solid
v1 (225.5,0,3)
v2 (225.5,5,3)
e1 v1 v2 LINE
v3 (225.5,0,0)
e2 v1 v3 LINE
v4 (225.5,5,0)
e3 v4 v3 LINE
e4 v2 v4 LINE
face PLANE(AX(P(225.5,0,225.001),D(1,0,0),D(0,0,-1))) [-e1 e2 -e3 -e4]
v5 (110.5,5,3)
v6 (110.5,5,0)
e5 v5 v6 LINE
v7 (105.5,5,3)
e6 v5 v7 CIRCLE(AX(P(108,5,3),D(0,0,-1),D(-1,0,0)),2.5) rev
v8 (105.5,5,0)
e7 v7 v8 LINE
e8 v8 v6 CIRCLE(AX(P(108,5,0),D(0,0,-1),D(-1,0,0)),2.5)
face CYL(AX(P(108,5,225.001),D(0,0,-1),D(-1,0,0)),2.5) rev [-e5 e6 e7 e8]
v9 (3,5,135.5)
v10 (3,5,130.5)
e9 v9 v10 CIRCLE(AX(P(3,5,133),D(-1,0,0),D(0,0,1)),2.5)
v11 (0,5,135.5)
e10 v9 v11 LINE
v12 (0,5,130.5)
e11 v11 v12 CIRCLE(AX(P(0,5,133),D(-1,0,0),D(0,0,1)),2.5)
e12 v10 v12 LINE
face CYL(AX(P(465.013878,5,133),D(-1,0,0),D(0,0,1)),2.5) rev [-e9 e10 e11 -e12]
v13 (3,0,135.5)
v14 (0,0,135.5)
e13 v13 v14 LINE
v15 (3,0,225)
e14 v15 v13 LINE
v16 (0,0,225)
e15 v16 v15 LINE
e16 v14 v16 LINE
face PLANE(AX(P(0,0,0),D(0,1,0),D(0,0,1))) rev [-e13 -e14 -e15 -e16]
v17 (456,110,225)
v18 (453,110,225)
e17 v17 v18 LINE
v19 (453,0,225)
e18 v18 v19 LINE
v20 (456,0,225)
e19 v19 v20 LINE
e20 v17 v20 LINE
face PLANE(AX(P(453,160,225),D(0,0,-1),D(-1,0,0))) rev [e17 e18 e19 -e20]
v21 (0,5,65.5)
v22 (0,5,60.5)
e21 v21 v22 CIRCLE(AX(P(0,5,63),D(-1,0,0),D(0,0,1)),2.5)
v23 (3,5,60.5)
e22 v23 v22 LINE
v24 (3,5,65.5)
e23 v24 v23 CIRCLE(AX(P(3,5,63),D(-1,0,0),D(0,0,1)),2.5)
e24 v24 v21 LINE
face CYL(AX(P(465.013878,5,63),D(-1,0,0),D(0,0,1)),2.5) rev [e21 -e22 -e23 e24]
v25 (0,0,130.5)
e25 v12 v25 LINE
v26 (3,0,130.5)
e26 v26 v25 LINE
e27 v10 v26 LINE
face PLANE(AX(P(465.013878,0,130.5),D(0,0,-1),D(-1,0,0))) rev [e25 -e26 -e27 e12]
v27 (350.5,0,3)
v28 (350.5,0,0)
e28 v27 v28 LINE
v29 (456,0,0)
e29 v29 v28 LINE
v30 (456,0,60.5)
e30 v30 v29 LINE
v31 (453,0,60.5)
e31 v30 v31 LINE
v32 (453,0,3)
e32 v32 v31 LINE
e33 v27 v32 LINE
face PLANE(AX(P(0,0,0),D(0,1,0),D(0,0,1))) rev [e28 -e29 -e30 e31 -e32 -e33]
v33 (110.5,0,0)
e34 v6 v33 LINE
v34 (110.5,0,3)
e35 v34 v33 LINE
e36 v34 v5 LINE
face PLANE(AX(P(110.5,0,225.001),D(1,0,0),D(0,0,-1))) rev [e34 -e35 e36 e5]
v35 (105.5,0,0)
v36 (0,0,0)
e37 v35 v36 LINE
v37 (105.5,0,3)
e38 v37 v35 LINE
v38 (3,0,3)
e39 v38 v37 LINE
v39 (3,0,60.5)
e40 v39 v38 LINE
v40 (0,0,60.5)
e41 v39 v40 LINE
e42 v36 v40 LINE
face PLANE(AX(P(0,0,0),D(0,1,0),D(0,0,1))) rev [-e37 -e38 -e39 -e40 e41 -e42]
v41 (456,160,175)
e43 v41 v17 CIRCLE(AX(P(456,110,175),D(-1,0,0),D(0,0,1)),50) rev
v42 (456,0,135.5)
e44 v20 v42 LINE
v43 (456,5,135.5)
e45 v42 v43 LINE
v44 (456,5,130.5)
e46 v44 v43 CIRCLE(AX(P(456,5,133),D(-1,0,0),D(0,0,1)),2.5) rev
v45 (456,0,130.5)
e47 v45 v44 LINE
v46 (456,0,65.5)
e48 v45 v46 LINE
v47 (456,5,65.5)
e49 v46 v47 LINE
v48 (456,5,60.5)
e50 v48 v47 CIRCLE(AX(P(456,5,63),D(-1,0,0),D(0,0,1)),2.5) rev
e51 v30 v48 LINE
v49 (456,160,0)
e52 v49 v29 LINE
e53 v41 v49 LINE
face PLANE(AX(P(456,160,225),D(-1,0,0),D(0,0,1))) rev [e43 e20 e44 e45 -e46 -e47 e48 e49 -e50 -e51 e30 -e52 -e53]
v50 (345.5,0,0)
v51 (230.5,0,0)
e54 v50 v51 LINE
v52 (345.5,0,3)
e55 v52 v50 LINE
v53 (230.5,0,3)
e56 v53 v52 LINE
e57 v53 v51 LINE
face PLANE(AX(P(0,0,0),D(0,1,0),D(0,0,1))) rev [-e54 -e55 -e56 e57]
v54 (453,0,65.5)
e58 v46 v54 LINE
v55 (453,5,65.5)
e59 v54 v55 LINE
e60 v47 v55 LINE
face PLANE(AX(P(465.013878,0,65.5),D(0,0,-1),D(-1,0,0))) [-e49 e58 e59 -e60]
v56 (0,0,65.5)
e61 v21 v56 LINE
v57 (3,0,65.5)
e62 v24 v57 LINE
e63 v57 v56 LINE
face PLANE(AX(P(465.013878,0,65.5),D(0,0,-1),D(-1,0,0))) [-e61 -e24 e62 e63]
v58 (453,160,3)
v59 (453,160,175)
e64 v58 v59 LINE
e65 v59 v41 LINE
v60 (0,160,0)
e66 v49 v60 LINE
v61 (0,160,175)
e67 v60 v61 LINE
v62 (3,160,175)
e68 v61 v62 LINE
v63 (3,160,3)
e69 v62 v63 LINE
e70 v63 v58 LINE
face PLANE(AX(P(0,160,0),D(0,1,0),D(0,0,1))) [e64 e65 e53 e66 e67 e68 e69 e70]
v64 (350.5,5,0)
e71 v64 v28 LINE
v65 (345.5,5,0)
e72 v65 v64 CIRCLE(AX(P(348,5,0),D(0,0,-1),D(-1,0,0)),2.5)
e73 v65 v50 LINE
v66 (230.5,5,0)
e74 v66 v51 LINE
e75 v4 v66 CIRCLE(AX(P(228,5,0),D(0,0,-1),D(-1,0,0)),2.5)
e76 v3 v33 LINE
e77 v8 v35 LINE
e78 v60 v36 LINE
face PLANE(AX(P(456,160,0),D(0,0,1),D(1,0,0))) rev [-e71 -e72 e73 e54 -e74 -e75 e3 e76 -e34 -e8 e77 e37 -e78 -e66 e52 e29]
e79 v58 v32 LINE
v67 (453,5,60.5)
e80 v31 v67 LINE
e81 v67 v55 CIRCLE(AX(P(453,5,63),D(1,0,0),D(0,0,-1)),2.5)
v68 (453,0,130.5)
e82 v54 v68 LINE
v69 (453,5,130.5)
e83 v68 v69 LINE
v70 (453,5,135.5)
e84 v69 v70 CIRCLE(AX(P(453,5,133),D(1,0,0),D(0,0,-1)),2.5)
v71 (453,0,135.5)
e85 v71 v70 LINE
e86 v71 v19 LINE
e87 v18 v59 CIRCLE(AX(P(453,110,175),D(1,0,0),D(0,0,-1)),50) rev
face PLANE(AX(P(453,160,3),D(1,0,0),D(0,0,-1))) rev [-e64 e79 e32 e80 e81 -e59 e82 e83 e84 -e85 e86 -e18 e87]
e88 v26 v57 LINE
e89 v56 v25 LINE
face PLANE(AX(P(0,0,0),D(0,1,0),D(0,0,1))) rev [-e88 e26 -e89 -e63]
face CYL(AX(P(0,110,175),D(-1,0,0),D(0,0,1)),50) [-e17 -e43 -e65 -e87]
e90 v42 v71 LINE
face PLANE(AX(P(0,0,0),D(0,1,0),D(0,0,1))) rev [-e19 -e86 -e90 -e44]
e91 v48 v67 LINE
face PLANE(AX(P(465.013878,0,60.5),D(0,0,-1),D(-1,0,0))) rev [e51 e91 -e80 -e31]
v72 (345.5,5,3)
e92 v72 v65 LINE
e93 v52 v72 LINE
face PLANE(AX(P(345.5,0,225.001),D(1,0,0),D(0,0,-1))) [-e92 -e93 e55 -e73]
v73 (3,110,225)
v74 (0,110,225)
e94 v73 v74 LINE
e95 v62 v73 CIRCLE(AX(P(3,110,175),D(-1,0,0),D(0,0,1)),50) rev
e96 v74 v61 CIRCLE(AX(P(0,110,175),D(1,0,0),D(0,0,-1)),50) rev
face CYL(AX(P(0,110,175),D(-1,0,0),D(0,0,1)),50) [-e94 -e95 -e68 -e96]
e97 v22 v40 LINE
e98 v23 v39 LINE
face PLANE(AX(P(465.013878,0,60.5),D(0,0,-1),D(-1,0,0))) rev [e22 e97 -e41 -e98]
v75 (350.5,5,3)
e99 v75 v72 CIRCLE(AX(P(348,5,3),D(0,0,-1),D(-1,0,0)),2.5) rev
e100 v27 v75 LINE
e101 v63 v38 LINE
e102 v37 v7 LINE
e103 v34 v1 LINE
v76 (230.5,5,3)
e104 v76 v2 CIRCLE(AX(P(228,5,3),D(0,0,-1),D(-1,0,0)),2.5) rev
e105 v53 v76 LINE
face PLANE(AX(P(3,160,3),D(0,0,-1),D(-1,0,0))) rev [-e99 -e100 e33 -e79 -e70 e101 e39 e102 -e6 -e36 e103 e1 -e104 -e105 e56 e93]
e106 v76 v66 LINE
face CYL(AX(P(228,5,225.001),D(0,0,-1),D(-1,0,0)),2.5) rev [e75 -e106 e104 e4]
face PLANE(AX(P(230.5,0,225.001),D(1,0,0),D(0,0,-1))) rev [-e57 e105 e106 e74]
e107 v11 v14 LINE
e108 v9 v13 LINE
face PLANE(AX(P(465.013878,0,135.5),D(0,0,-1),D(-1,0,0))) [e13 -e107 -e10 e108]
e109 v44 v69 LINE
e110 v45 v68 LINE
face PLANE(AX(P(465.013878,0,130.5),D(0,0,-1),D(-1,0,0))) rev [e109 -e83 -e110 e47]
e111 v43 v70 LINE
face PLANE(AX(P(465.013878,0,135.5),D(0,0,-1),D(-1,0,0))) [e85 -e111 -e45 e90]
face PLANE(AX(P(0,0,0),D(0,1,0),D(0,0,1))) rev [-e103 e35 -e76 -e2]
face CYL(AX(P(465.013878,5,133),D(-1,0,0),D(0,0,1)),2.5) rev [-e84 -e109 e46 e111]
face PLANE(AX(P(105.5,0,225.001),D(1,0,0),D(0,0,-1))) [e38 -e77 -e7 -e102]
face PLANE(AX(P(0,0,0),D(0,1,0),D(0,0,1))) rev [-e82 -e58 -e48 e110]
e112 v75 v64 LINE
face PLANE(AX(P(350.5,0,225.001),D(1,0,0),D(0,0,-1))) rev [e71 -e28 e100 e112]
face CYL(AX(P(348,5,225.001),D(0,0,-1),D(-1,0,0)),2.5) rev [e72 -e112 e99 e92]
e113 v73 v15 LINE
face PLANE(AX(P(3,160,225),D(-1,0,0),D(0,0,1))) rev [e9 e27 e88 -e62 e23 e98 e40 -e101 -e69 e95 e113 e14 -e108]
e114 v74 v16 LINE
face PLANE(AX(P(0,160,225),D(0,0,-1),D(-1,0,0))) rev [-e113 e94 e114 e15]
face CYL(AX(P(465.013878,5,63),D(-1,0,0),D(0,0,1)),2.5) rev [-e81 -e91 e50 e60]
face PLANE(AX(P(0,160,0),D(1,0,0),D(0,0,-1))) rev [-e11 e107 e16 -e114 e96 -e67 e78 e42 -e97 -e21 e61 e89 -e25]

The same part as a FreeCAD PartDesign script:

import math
import FreeCAD as App
import Part
import Sketcher
from FreeCAD import Vector
Q = App.Units.Quantity


def edges_at(feature, points):
    """Names of the edges that pass closest to the given points."""
    edges = feature.Shape.Edges
    near = lambda p: min(range(len(edges)), key=lambda i: edges[i].distToShape(Part.Vertex(*p))[0])
    return sorted({f"Edge{near(p) + 1}" for p in points})


def add_polygon(sketch, points):
    """Adds a closed chain of lines whose ends are joined by coincident constraints."""
    first, n = sketch.GeometryCount, len(points)
    for a, b in zip(points, points[1:] + points[:1]):
        sketch.addGeometry(Part.LineSegment(App.Vector(*a, 0), App.Vector(*b, 0)), False)
    for i in range(n):
        sketch.addConstraint(Sketcher.Constraint("Coincident", first + i, 2, first + (i + 1) % n, 1))

doc = App.newDocument("Part")
body = doc.addObject("PartDesign::Body", "Body")

sketch1 = body.newObject("Sketcher::SketchObject", "Sketch")
sketch1.AttachmentSupport = (doc.getObject("XZ_Plane"), [""])
sketch1.MapMode = "FlatFace"
add_polygon(sketch1, [(3, 225), (3, 3), (453, 3), (453, 225), (456, 225), (456, 0), (0, 0), (0, 225)])
sketch1.addConstraint([
    Sketcher.Constraint("Vertical", 0),
    Sketcher.Constraint("Horizontal", 1),
    Sketcher.Constraint("Vertical", 2),
    Sketcher.Constraint("Horizontal", 3),
    Sketcher.Constraint("Vertical", 4),
    Sketcher.Constraint("Horizontal", 5),
    Sketcher.Constraint("Vertical", 6),
    Sketcher.Constraint("Horizontal", 7),
    Sketcher.Constraint("Coincident", 5, 2, -1, 1),
    Sketcher.Constraint("Horizontal", 3, 2, 6, 2),
    Sketcher.Constraint("Equal", 3, 7),
    Sketcher.Constraint("DistanceX", 1, 1, 1, 2, Q("450 mm")),
    Sketcher.Constraint("DistanceX", 3, 1, 3, 2, Q("3 mm")),
    Sketcher.Constraint("DistanceY", 0, 2, 0, 1, Q("222 mm")),
    Sketcher.Constraint("DistanceY", 4, 2, 4, 1, Q("225 mm")),
])
pad1 = body.newObject("PartDesign::Pad", "Pad")
pad1.Profile = sketch1
pad1.Length = 160
pad1.Reversed = True

sketch2 = body.newObject("Sketcher::SketchObject", "Sketch001")
sketch2.AttachmentSupport = (doc.getObject("YZ_Plane"), [""])
sketch2.MapMode = "FlatFace"
sketch2.addGeometry([
    Part.LineSegment(Vector(0, 60.5, 0), Vector(0, 65.5, 0)),
    Part.LineSegment(Vector(0, 65.5, 0), Vector(5, 65.5, 0)),
    Part.ArcOfCircle(Part.Circle(Vector(5, 63, 0), Vector(0, 0, 1), 2.5), math.radians(-90), math.radians(90)),
    Part.LineSegment(Vector(5, 60.5, 0), Vector(0, 60.5, 0)),
    Part.ArcOfCircle(Part.Circle(Vector(5, 133, 0), Vector(0, 0, 1), 2.5), math.radians(-90), math.radians(90)),
    Part.LineSegment(Vector(5, 130.5, 0), Vector(0, 130.5, 0)),
    Part.LineSegment(Vector(0, 130.5, 0), Vector(0, 135.5, 0)),
    Part.LineSegment(Vector(0, 135.5, 0), Vector(5, 135.5, 0)),
], False)
sketch2.addConstraint([
    Sketcher.Constraint("Coincident", 0, 2, 1, 1),
    Sketcher.Constraint("Tangent", 1, 2, 2, 2),
    Sketcher.Constraint("Tangent", 2, 1, 3, 1),
    Sketcher.Constraint("Coincident", 3, 2, 0, 1),
    Sketcher.Constraint("Tangent", 4, 1, 5, 1),
    Sketcher.Constraint("Coincident", 5, 2, 6, 1),
    Sketcher.Constraint("Coincident", 6, 2, 7, 1),
    Sketcher.Constraint("Tangent", 7, 2, 4, 2),
    Sketcher.Constraint("Vertical", 0),
    Sketcher.Constraint("Horizontal", 1),
    Sketcher.Constraint("Horizontal", 3),
    Sketcher.Constraint("Horizontal", 5),
    Sketcher.Constraint("Vertical", 6),
    Sketcher.Constraint("Horizontal", 7),
    Sketcher.Constraint("Equal", 2, 4),
    Sketcher.Constraint("PointOnObject", 0, 2, -2),
    Sketcher.Constraint("PointOnObject", 5, 2, -2),
    Sketcher.Constraint("Vertical", 2, 3, 4, 3),
    Sketcher.Constraint("Equal", 7, 0),
    Sketcher.Constraint("Radius", 2, Q("2.5 mm")),
    Sketcher.Constraint("DistanceY", -1, 1, 2, 3, Q("63 mm")),
    Sketcher.Constraint("DistanceY", -1, 1, 4, 3, Q("133 mm")),
])
pocket1 = body.newObject("PartDesign::Pocket", "Pocket")
pocket1.Profile = sketch2
pocket1.Length = 456
pocket1.Reversed = True

sketch3 = body.newObject("Sketcher::SketchObject", "Sketch002")
sketch3.AttachmentSupport = (doc.getObject("XY_Plane"), [""])
sketch3.MapMode = "FlatFace"
sketch3.addGeometry(Part.Circle(Vector(348, 5, 0), Vector(0, 0, 1), 2.5), False)
sketch3.addConstraint([
    Sketcher.Constraint("Diameter", 0, Q("5 mm")),
    Sketcher.Constraint("DistanceX", -1, 1, 0, 3, Q("348 mm")),
    Sketcher.Constraint("DistanceY", -1, 1, 0, 3, Q("5 mm")),
])
pocket2 = body.newObject("PartDesign::Pocket", "Pocket001")
pocket2.Profile = sketch3
pocket2.Type = "UpToFirst"
pocket2.Reversed = True

sketch4 = body.newObject("Sketcher::SketchObject", "Sketch003")
sketch4.AttachmentSupport = (doc.getObject("XY_Plane"), [""])
sketch4.MapMode = "FlatFace"
sketch4.addGeometry(Part.Circle(Vector(228, 5, 0), Vector(0, 0, 1), 2.5), False)
sketch4.addConstraint([
    Sketcher.Constraint("Diameter", 0, Q("5 mm")),
    Sketcher.Constraint("DistanceX", -1, 1, 0, 3, Q("228 mm")),
    Sketcher.Constraint("DistanceY", -1, 1, 0, 3, Q("5 mm")),
])
pocket3 = body.newObject("PartDesign::Pocket", "Pocket002")
pocket3.Profile = sketch4
pocket3.Type = "UpToFirst"
pocket3.Reversed = True

sketch5 = body.newObject("Sketcher::SketchObject", "Sketch004")
sketch5.AttachmentSupport = (doc.getObject("XY_Plane"), [""])
sketch5.MapMode = "FlatFace"
sketch5.addGeometry(Part.Circle(Vector(108, 5, 0), Vector(0, 0, 1), 2.5), False)
sketch5.addConstraint([
    Sketcher.Constraint("Diameter", 0, Q("5 mm")),
    Sketcher.Constraint("DistanceX", -1, 1, 0, 3, Q("108 mm")),
    Sketcher.Constraint("DistanceY", -1, 1, 0, 3, Q("5 mm")),
])
pocket4 = body.newObject("PartDesign::Pocket", "Pocket003")
pocket4.Profile = sketch5
pocket4.Type = "UpToFirst"
pocket4.Reversed = True

sketch6 = body.newObject("Sketcher::SketchObject", "Sketch005")
sketch6.AttachmentSupport = (doc.getObject("XY_Plane"), [""])
sketch6.MapMode = "FlatFace"
add_polygon(sketch6, [(230, 5), (230, 0), (226, 0), (226, 5)])
sketch6.addConstraint([
    Sketcher.Constraint("Vertical", 0),
    Sketcher.Constraint("Horizontal", 1),
    Sketcher.Constraint("Vertical", 2),
    Sketcher.Constraint("Horizontal", 3),
    Sketcher.Constraint("PointOnObject", 0, 2, -1),
    Sketcher.Constraint("Equal", 3, 0),
    Sketcher.Constraint("DistanceX", 1, 2, 1, 1, Q("5 mm")),
    Sketcher.Constraint("DistanceX", -1, 1, 0, 2, Q("230.5 mm")),
])
pocket5 = body.newObject("PartDesign::Pocket", "Pocket004")
pocket5.Profile = sketch6
pocket5.Type = "UpToFirst"
pocket5.Reversed = True

sketch7 = body.newObject("Sketcher::SketchObject", "Sketch006")
sketch7.AttachmentSupport = (doc.getObject("XY_Plane"), [""])
sketch7.MapMode = "FlatFace"
add_polygon(sketch7, [(110, 5), (110, 0), (106, 0), (106, 5)])
sketch7.addConstraint([
    Sketcher.Constraint("Vertical", 0),
    Sketcher.Constraint("Horizontal", 1),
    Sketcher.Constraint("Vertical", 2),
    Sketcher.Constraint("Horizontal", 3),
    Sketcher.Constraint("PointOnObject", 0, 2, -1),
    Sketcher.Constraint("Equal", 3, 0),
    Sketcher.Constraint("DistanceX", 1, 2, 1, 1, Q("5 mm")),
    Sketcher.Constraint("DistanceX", -1, 1, 0, 2, Q("110.5 mm")),
])
pocket6 = body.newObject("PartDesign::Pocket", "Pocket005")
pocket6.Profile = sketch7
pocket6.Type = "UpToFirst"
pocket6.Reversed = True

sketch8 = body.newObject("Sketcher::SketchObject", "Sketch007")
sketch8.AttachmentSupport = (doc.getObject("XY_Plane"), [""])
sketch8.MapMode = "FlatFace"
add_polygon(sketch8, [(350, 5), (350, 0), (346, 0), (346, 5)])
sketch8.addConstraint([
    Sketcher.Constraint("Vertical", 0),
    Sketcher.Constraint("Horizontal", 1),
    Sketcher.Constraint("Vertical", 2),
    Sketcher.Constraint("Horizontal", 3),
    Sketcher.Constraint("PointOnObject", 0, 2, -1),
    Sketcher.Constraint("Equal", 3, 0),
    Sketcher.Constraint("DistanceX", 1, 2, 1, 1, Q("5 mm")),
    Sketcher.Constraint("DistanceX", -1, 1, 0, 2, Q("350.5 mm")),
])
pocket7 = body.newObject("PartDesign::Pocket", "Pocket006")
pocket7.Profile = sketch8
pocket7.Type = "UpToFirst"
pocket7.Reversed = True
doc.recompute()

fillet = body.newObject("PartDesign::Fillet", "Fillet")
fillet.Base = (pocket7, edges_at(pocket7, [(454.5, 160, 225), (1.5, 160, 225)]))
fillet.Radius = 50

doc.recompute()
